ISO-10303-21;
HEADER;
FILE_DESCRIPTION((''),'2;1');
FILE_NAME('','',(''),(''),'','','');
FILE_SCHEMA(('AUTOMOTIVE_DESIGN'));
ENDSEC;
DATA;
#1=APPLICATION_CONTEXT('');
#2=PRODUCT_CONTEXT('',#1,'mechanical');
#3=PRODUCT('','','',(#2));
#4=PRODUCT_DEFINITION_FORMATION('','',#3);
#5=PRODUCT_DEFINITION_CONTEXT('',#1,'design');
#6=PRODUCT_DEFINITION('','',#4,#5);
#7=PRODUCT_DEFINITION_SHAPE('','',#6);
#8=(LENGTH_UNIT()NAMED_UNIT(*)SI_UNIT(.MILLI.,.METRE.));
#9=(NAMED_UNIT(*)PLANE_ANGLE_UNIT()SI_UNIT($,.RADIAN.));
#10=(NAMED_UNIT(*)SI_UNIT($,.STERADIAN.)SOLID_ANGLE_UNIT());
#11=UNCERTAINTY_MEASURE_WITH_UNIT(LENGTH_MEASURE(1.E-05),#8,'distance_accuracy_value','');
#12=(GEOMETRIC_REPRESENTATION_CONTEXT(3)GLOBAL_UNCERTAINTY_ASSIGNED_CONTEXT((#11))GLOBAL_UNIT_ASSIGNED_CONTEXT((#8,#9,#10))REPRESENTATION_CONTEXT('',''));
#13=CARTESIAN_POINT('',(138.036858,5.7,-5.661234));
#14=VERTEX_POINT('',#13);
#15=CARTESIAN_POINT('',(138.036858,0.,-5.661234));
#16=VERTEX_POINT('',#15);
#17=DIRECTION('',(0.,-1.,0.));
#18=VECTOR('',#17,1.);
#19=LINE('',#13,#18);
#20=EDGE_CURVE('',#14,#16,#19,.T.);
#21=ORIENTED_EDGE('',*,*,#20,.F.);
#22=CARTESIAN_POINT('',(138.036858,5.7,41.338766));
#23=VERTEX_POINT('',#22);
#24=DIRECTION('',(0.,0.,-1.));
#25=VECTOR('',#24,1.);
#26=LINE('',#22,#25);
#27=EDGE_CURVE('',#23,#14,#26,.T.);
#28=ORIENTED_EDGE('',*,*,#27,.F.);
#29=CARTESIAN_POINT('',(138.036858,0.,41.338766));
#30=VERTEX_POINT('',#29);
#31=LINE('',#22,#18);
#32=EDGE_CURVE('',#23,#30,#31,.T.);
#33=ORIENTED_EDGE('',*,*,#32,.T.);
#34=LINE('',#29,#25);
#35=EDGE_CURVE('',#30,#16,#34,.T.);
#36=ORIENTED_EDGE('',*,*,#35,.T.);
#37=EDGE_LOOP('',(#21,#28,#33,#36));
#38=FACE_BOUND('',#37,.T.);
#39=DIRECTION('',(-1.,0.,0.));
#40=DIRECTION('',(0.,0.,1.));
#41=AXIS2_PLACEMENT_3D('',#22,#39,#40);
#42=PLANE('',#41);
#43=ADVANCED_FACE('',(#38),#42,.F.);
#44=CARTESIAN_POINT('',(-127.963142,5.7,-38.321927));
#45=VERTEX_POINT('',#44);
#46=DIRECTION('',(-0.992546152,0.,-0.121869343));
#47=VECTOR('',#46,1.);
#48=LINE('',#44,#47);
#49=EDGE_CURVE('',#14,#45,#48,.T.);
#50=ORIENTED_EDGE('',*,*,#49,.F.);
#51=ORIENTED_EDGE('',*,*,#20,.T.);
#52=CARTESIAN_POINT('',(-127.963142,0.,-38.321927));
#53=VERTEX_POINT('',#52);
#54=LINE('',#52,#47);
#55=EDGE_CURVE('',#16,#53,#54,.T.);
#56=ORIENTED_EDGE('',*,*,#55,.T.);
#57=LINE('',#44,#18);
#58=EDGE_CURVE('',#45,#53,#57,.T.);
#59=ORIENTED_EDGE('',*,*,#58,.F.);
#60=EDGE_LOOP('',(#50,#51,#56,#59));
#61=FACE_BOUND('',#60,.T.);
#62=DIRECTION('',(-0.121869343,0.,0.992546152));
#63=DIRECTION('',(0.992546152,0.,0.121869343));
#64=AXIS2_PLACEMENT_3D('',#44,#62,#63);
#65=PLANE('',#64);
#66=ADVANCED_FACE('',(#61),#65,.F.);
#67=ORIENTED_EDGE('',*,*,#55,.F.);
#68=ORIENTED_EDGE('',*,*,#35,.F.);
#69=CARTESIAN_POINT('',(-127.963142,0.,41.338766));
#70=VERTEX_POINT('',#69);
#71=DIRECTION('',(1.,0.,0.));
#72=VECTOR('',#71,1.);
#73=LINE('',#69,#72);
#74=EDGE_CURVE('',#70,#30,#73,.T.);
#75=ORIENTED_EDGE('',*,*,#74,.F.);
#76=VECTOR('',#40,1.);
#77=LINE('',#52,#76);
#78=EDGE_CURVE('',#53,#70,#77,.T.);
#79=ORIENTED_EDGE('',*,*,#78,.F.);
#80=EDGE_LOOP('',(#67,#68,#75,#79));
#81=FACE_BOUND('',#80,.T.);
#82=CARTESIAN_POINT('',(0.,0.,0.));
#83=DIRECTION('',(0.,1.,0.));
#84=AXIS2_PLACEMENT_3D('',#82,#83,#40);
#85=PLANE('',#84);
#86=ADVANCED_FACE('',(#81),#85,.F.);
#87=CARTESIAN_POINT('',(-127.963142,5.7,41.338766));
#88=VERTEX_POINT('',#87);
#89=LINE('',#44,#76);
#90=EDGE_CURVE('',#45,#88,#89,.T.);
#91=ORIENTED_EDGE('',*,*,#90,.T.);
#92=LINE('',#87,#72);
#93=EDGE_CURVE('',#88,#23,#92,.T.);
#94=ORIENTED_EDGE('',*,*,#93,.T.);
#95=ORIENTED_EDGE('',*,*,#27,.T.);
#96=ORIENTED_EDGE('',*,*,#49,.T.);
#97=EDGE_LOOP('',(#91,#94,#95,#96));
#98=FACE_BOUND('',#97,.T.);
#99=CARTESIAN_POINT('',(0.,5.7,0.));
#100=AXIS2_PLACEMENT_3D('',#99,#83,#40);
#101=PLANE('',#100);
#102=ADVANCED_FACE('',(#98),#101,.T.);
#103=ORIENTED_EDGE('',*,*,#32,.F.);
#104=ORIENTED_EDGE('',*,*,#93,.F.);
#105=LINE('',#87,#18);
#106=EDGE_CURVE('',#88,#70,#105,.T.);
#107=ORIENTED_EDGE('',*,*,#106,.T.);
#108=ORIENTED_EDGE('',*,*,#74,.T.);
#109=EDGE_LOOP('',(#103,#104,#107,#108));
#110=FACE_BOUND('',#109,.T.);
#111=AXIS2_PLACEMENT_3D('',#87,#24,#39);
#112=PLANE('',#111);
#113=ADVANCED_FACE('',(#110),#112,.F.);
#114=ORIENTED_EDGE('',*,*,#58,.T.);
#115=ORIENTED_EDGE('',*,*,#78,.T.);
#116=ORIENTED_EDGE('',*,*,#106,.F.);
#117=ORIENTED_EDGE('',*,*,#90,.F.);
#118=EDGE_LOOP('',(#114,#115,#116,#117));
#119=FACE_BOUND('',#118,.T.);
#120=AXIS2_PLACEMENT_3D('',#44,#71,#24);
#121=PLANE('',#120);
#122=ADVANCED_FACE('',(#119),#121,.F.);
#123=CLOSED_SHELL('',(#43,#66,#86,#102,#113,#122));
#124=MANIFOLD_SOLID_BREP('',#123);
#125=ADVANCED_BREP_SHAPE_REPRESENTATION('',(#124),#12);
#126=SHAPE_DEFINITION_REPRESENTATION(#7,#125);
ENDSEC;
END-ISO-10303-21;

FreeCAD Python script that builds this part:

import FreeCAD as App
import Part
import Sketcher

V = App.Vector
Q = App.Units.Quantity

doc = App.newDocument("Part")
params = doc.addObject("Spreadsheet::Sheet", "Params")
for row, (alias, value) in enumerate([
    ("sketch1_width", "266 mm"),
    ("sketch1_height", "47 mm"),
    ("pad1_length", "5.7 mm"),
], start=1):
    params.set(f"A{row}", alias)
    params.set(f"B{row}", "=" + value)
    params.setAlias(f"B{row}", alias)

body = doc.addObject("PartDesign::Body", "Body")

sketch1 = doc.addObject("Sketcher::SketchObject", "Sketch")
body.addObject(sketch1)
sketch1.AttachmentSupport = (doc.XZ_Plane, [""])
sketch1.MapMode = "FlatFace"
sketch1.addGeometry([
    Part.LineSegment(V(138, 41, 0), V(138, -6, 0)),
    Part.LineSegment(V(138, -6, 0), V(-128, -38, 0)),
    Part.LineSegment(V(-128, -38, 0), V(-128, 41, 0)),
    Part.LineSegment(V(-128, 41, 0), V(138, 41, 0)),
], False)
sketch1.addConstraint([
    Sketcher.Constraint("Coincident", 0, 2, 1, 1),
    Sketcher.Constraint("Coincident", 1, 2, 2, 1),
    Sketcher.Constraint("Coincident", 2, 2, 3, 1),
    Sketcher.Constraint("Coincident", 3, 2, 0, 1),
    Sketcher.Constraint("Vertical", 0),
    Sketcher.Constraint("Vertical", 2),
    Sketcher.Constraint("Horizontal", 3),
    Sketcher.Constraint("DistanceX", 3, 1, 3, 2, 266.0),
    Sketcher.Constraint("DistanceY", 0, 2, 0, 1, 47.0),
    Sketcher.Constraint("Angle", 1, Q("-173 deg")),
    Sketcher.Constraint("DistanceX", -1, 1, 0, 2, 138.036858),
    Sketcher.Constraint("DistanceY", 0, 2, -1, 1, 5.661234),
])
sketch1.setExpression("Constraints[7]", "Params.sketch1_width")
sketch1.setExpression("Constraints[8]", "Params.sketch1_height")
pad1 = doc.addObject("PartDesign::Pad", "Pad")
body.addObject(pad1)
pad1.Profile = sketch1
pad1.setExpression("Length", "Params.pad1_length")
pad1.Reversed = True

doc.recompute()
